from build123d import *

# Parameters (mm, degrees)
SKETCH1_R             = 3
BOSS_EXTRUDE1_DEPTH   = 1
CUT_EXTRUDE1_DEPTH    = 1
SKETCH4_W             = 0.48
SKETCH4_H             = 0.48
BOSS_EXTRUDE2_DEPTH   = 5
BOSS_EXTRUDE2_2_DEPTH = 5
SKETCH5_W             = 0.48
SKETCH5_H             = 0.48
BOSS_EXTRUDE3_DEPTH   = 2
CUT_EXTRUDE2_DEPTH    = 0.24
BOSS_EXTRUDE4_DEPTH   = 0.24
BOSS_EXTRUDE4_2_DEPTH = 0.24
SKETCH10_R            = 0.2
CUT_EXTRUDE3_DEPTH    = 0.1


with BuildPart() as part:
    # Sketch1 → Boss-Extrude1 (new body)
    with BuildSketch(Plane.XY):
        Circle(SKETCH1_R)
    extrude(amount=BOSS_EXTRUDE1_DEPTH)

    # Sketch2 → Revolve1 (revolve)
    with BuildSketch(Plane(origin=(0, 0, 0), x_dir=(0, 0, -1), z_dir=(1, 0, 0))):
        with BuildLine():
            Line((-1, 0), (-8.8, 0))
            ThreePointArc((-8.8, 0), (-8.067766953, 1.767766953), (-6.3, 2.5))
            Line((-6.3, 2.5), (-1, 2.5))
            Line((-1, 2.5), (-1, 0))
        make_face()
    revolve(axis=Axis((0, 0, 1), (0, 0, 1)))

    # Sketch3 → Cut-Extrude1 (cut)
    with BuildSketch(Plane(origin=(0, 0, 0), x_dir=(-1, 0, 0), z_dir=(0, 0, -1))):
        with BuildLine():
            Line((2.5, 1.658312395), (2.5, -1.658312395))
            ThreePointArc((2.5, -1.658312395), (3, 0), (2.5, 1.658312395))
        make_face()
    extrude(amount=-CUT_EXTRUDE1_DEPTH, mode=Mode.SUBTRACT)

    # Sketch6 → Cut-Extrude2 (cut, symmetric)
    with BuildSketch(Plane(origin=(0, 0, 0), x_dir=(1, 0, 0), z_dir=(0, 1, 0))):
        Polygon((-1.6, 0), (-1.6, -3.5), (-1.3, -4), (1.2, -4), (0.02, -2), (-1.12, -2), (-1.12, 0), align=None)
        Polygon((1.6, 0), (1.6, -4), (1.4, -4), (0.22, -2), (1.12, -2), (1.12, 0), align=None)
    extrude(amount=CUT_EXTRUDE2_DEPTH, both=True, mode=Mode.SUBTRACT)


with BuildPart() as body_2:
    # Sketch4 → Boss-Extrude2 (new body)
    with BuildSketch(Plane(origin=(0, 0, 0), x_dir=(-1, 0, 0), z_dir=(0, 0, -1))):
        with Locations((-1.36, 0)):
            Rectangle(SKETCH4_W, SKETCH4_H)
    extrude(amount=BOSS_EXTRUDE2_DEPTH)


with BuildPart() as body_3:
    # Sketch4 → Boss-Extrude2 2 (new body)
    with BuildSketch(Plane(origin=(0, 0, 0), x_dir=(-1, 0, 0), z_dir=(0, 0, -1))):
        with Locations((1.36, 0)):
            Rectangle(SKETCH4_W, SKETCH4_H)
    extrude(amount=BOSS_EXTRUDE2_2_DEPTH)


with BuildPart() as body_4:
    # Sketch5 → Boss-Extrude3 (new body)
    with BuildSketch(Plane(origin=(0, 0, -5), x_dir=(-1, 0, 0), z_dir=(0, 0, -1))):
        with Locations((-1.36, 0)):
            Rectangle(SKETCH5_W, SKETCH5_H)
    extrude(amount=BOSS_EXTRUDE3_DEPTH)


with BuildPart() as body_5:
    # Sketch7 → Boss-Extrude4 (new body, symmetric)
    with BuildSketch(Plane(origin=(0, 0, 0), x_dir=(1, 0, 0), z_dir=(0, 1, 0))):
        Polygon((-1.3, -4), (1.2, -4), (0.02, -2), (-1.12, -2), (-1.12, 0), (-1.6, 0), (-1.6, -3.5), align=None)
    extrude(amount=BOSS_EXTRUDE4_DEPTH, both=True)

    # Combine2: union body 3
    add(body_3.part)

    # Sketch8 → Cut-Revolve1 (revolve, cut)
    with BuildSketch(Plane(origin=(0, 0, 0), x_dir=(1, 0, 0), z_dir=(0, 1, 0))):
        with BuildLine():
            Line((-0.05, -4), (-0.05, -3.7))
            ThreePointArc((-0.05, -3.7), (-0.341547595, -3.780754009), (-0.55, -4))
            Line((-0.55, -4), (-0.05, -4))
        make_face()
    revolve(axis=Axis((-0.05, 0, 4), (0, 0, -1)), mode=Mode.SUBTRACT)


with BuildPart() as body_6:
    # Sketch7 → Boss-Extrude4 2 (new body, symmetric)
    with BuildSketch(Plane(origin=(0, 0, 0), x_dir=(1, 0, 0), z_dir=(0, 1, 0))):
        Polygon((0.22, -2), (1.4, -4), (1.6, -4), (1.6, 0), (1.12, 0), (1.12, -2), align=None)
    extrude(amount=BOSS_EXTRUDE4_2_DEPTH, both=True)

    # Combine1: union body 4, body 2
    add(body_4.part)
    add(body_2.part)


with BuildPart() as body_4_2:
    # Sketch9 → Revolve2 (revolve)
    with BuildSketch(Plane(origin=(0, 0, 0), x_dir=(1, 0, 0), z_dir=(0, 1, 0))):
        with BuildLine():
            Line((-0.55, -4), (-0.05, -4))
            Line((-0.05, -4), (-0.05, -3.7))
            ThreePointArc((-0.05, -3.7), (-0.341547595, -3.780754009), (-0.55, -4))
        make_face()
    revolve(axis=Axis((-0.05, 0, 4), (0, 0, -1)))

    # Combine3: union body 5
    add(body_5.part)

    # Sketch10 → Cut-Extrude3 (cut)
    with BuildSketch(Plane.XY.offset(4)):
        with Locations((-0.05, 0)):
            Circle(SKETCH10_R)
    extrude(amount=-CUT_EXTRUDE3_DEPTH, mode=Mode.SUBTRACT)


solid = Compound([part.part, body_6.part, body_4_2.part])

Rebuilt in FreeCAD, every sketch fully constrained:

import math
import FreeCAD as App
import Part
import Sketcher
Q = App.Units.Quantity

doc = App.newDocument("Part")
body = doc.addObject("PartDesign::Body", "Body")

sketch1 = body.newObject("Sketcher::SketchObject", "Sketch")
sketch1.AttachmentSupport = (doc.getObject("XY_Plane"), [""])
sketch1.MapMode = "FlatFace"
sketch1.addGeometry(Part.Circle(App.Vector(0, 0, 0), App.Vector(0, 0, 1), 3), False)
sketch1.addConstraint(Sketcher.Constraint("Coincident", 0, 3, -1, 1))
sketch1.addConstraint(Sketcher.Constraint("Diameter", 0, Q("6 mm")))
pad1 = body.newObject("PartDesign::Pad", "Pad")
pad1.Profile = sketch1
pad1.Length = 1

sketch2 = body.newObject("Sketcher::SketchObject", "Sketch001")
sketch2.AttachmentSupport = (doc.getObject("YZ_Plane"), [""])
sketch2.MapMode = "FlatFace"
sketch2.addGeometry(Part.LineSegment(App.Vector(0, 8.8, 0), App.Vector(0, 1, 0)), False)
sketch2.addGeometry(Part.LineSegment(App.Vector(0, 1, 0), App.Vector(2.5, 1, 0)), False)
sketch2.addGeometry(Part.LineSegment(App.Vector(2.5, 1, 0), App.Vector(2.5, 6.3, 0)), False)
sketch2.addGeometry(Part.ArcOfCircle(Part.Circle(App.Vector(0, 6.3, 0), App.Vector(0, 0, 1), 2.5), math.radians(0), math.radians(90)), False)
sketch2.addConstraint(Sketcher.Constraint("Coincident", 0, 2, 1, 1))
sketch2.addConstraint(Sketcher.Constraint("Coincident", 1, 2, 2, 1))
sketch2.addConstraint(Sketcher.Constraint("Tangent", 2, 2, 3, 1))
sketch2.addConstraint(Sketcher.Constraint("Coincident", 3, 2, 0, 1))
sketch2.addConstraint(Sketcher.Constraint("Vertical", 0))
sketch2.addConstraint(Sketcher.Constraint("Horizontal", 1))
sketch2.addConstraint(Sketcher.Constraint("Vertical", 2))
sketch2.addConstraint(Sketcher.Constraint("PointOnObject", 3, 3, -2))
sketch2.addConstraint(Sketcher.Constraint("PointOnObject", 0, 2, -2))
sketch2.addConstraint(Sketcher.Constraint("Radius", 3, Q("2.5 mm")))
sketch2.addConstraint(Sketcher.Constraint("DistanceY", 0, 2, 0, 1, Q("7.8 mm")))
sketch2.addConstraint(Sketcher.Constraint("DistanceY", -1, 1, 0, 2, Q("1 mm")))
revolution = body.newObject("PartDesign::Revolution", "Revolution")
revolution.Profile = sketch2
revolution.ReferenceAxis = (sketch2, ["V_Axis"])
revolution.Angle = 360

sketch3 = body.newObject("Sketcher::SketchObject", "Sketch002")
sketch3.AttachmentSupport = (doc.getObject("XY_Plane"), [""])
sketch3.MapMode = "FlatFace"
sketch3.addGeometry(Part.LineSegment(App.Vector(-2.5, 1.7, 0), App.Vector(-2.5, -1.7, 0)), False)
sketch3.addGeometry(Part.ArcOfCircle(Part.Circle(App.Vector(0, 0, 0), App.Vector(0, 0, 1), 3), math.radians(146), math.radians(214)), False)
sketch3.addConstraint(Sketcher.Constraint("Coincident", 0, 1, 1, 1))
sketch3.addConstraint(Sketcher.Constraint("Coincident", 1, 2, 0, 2))
sketch3.addConstraint(Sketcher.Constraint("Vertical", 0))
sketch3.addConstraint(Sketcher.Constraint("Coincident", 1, 3, -1, 1))
sketch3.addConstraint(Sketcher.Constraint("Radius", 1, Q("3 mm")))
sketch3.addConstraint(Sketcher.Constraint("DistanceX", 0, 1, -1, 1, Q("2.5 mm")))
pocket1 = body.newObject("PartDesign::Pocket", "Pocket")
pocket1.Profile = sketch3
pocket1.Length = 1
pocket1.Reversed = True

sketch4 = body.newObject("Sketcher::SketchObject", "Sketch003")
sketch4.AttachmentSupport = (doc.getObject("XZ_Plane"), [""])
sketch4.MapMode = "FlatFace"
sketch4.addGeometry(Part.LineSegment(App.Vector(-1.6, 0, 0), App.Vector(-1.6, 3.5, 0)), False)
sketch4.addGeometry(Part.LineSegment(App.Vector(-1.6, 3.5, 0), App.Vector(-1.3, 4, 0)), False)
sketch4.addGeometry(Part.LineSegment(App.Vector(-1.3, 4, 0), App.Vector(1.2, 4, 0)), False)
sketch4.addGeometry(Part.LineSegment(App.Vector(1.2, 4, 0), App.Vector(0.02, 2, 0)), False)
sketch4.addGeometry(Part.LineSegment(App.Vector(0.02, 2, 0), App.Vector(-1.12, 2, 0)), False)
sketch4.addGeometry(Part.LineSegment(App.Vector(-1.12, 2, 0), App.Vector(-1.12, 0, 0)), False)
sketch4.addGeometry(Part.LineSegment(App.Vector(-1.12, 0, 0), App.Vector(-1.6, 0, 0)), False)
sketch4.addGeometry(Part.LineSegment(App.Vector(1.6, 4, 0), App.Vector(1.6, 0, 0)), False)
sketch4.addGeometry(Part.LineSegment(App.Vector(1.6, 0, 0), App.Vector(1.12, 0, 0)), False)
sketch4.addGeometry(Part.LineSegment(App.Vector(1.12, 0, 0), App.Vector(1.12, 2, 0)), False)
sketch4.addGeometry(Part.LineSegment(App.Vector(1.12, 2, 0), App.Vector(0.22, 2, 0)), False)
sketch4.addGeometry(Part.LineSegment(App.Vector(0.22, 2, 0), App.Vector(1.4, 4, 0)), False)
sketch4.addGeometry(Part.LineSegment(App.Vector(1.4, 4, 0), App.Vector(1.6, 4, 0)), False)
sketch4.addConstraint(Sketcher.Constraint("Coincident", 0, 2, 1, 1))
sketch4.addConstraint(Sketcher.Constraint("Coincident", 1, 2, 2, 1))
sketch4.addConstraint(Sketcher.Constraint("Coincident", 2, 2, 3, 1))
sketch4.addConstraint(Sketcher.Constraint("Coincident", 3, 2, 4, 1))
sketch4.addConstraint(Sketcher.Constraint("Coincident", 4, 2, 5, 1))
sketch4.addConstraint(Sketcher.Constraint("Coincident", 5, 2, 6, 1))
sketch4.addConstraint(Sketcher.Constraint("Coincident", 6, 2, 0, 1))
sketch4.addConstraint(Sketcher.Constraint("Coincident", 7, 2, 8, 1))
sketch4.addConstraint(Sketcher.Constraint("Coincident", 8, 2, 9, 1))
sketch4.addConstraint(Sketcher.Constraint("Coincident", 9, 2, 10, 1))
sketch4.addConstraint(Sketcher.Constraint("Coincident", 10, 2, 11, 1))
sketch4.addConstraint(Sketcher.Constraint("Coincident", 11, 2, 12, 1))
sketch4.addConstraint(Sketcher.Constraint("Coincident", 12, 2, 7, 1))
sketch4.addConstraint(Sketcher.Constraint("Vertical", 0))
sketch4.addConstraint(Sketcher.Constraint("Horizontal", 2))
sketch4.addConstraint(Sketcher.Constraint("Horizontal", 4))
sketch4.addConstraint(Sketcher.Constraint("Vertical", 5))
sketch4.addConstraint(Sketcher.Constraint("Horizontal", 6))
sketch4.addConstraint(Sketcher.Constraint("Vertical", 7))
sketch4.addConstraint(Sketcher.Constraint("Horizontal", 8))
sketch4.addConstraint(Sketcher.Constraint("Vertical", 9))
sketch4.addConstraint(Sketcher.Constraint("Horizontal", 10))
sketch4.addConstraint(Sketcher.Constraint("Horizontal", 12))
sketch4.addConstraint(Sketcher.Constraint("Symmetric", 6, 2, 7, 2, -1, 1))
sketch4.addConstraint(Sketcher.Constraint("Symmetric", 5, 2, 8, 2, -2))
sketch4.addConstraint(Sketcher.Constraint("Parallel", 3, 11))
sketch4.addConstraint(Sketcher.Constraint("Horizontal", 4, 2, 9, 2))
sketch4.addConstraint(Sketcher.Constraint("Horizontal", 2, 2, 11, 2))
sketch4.addConstraint(Sketcher.Constraint("DistanceY", 5, 2, 5, 1, Q("2 mm")))
sketch4.addConstraint(Sketcher.Constraint("DistanceY", 7, 2, 7, 1, Q("4 mm")))
sketch4.addConstraint(Sketcher.Constraint("DistanceX", 2, 1, 2, 2, Q("2.5 mm")))
sketch4.addConstraint(Sketcher.Constraint("DistanceX", 10, 2, 10, 1, Q("0.9 mm")))
sketch4.addConstraint(Sketcher.Constraint("DistanceX", 12, 1, 12, 2, Q("0.2 mm")))
sketch4.addConstraint(Sketcher.Constraint("DistanceY", 0, 1, 0, 2, Q("3.5 mm")))
sketch4.addConstraint(Sketcher.Constraint("DistanceX", 4, 2, 4, 1, Q("1.14 mm")))
sketch4.addConstraint(Sketcher.Constraint("DistanceX", 6, 2, 6, 1, Q("0.48 mm")))
sketch4.addConstraint(Sketcher.Constraint("DistanceX", 0, 2, -1, 1, Q("1.6 mm")))
pocket2 = body.newObject("PartDesign::Pocket", "Pocket001")
pocket2.Profile = sketch4
pocket2.Length = 0.48
pocket2.Midplane = True
body2 = doc.addObject("PartDesign::Body", "Body001")

sketch5 = body2.newObject("Sketcher::SketchObject", "Sketch004")
sketch5.AttachmentSupport = (doc.getObject("XY_Plane001"), [""])
sketch5.MapMode = "FlatFace"
sketch5.addGeometry(Part.LineSegment(App.Vector(1.6, 0.24, 0), App.Vector(1.6, -0.24, 0)), False)
sketch5.addGeometry(Part.LineSegment(App.Vector(1.6, -0.24, 0), App.Vector(1.12, -0.24, 0)), False)
sketch5.addGeometry(Part.LineSegment(App.Vector(1.12, -0.24, 0), App.Vector(1.12, 0.24, 0)), False)
sketch5.addGeometry(Part.LineSegment(App.Vector(1.12, 0.24, 0), App.Vector(1.6, 0.24, 0)), False)
sketch5.addConstraint(Sketcher.Constraint("Coincident", 0, 2, 1, 1))
sketch5.addConstraint(Sketcher.Constraint("Coincident", 1, 2, 2, 1))
sketch5.addConstraint(Sketcher.Constraint("Coincident", 2, 2, 3, 1))
sketch5.addConstraint(Sketcher.Constraint("Coincident", 3, 2, 0, 1))
sketch5.addConstraint(Sketcher.Constraint("Vertical", 0))
sketch5.addConstraint(Sketcher.Constraint("Horizontal", 1))
sketch5.addConstraint(Sketcher.Constraint("Vertical", 2))
sketch5.addConstraint(Sketcher.Constraint("Horizontal", 3))
sketch5.addConstraint(Sketcher.Constraint("Equal", 3, 0))
sketch5.addConstraint(Sketcher.Constraint("DistanceX", 1, 2, 1, 1, Q("0.48 mm")))
sketch5.addConstraint(Sketcher.Constraint("DistanceX", -1, 1, 0, 2, Q("1.6 mm")))
sketch5.addConstraint(Sketcher.Constraint("DistanceY", 0, 2, -1, 1, Q("0.24 mm")))
pad2 = body2.newObject("PartDesign::Pad", "Pad001")
pad2.Profile = sketch5
pad2.Length = 5
pad2.Reversed = True
body3 = doc.addObject("PartDesign::Body", "Body002")

sketch6 = body3.newObject("Sketcher::SketchObject", "Sketch005")
sketch6.AttachmentSupport = (doc.getObject("XY_Plane002"), [""])
sketch6.MapMode = "FlatFace"
sketch6.addGeometry(Part.LineSegment(App.Vector(-1.12, 0.24, 0), App.Vector(-1.12, -0.24, 0)), False)
sketch6.addGeometry(Part.LineSegment(App.Vector(-1.12, -0.24, 0), App.Vector(-1.6, -0.24, 0)), False)
sketch6.addGeometry(Part.LineSegment(App.Vector(-1.6, -0.24, 0), App.Vector(-1.6, 0.24, 0)), False)
sketch6.addGeometry(Part.LineSegment(App.Vector(-1.6, 0.24, 0), App.Vector(-1.12, 0.24, 0)), False)
sketch6.addConstraint(Sketcher.Constraint("Coincident", 0, 2, 1, 1))
sketch6.addConstraint(Sketcher.Constraint("Coincident", 1, 2, 2, 1))
sketch6.addConstraint(Sketcher.Constraint("Coincident", 2, 2, 3, 1))
sketch6.addConstraint(Sketcher.Constraint("Coincident", 3, 2, 0, 1))
sketch6.addConstraint(Sketcher.Constraint("Vertical", 0))
sketch6.addConstraint(Sketcher.Constraint("Horizontal", 1))
sketch6.addConstraint(Sketcher.Constraint("Vertical", 2))
sketch6.addConstraint(Sketcher.Constraint("Horizontal", 3))
sketch6.addConstraint(Sketcher.Constraint("Equal", 3, 0))
sketch6.addConstraint(Sketcher.Constraint("DistanceX", 1, 2, 1, 1, Q("0.48 mm")))
sketch6.addConstraint(Sketcher.Constraint("DistanceX", 1, 2, -1, 1, Q("1.6 mm")))
sketch6.addConstraint(Sketcher.Constraint("DistanceY", 0, 2, -1, 1, Q("0.24 mm")))
pad3 = body3.newObject("PartDesign::Pad", "Pad002")
pad3.Profile = sketch6
pad3.Length = 5
pad3.Reversed = True
body4 = doc.addObject("PartDesign::Body", "Body003")

sketch7 = body4.newObject("Sketcher::SketchObject", "Sketch006")
sketch7.AttachmentSupport = (doc.getObject("XY_Plane003"), [""])
sketch7.MapMode = "FlatFace"
sketch7.AttachmentOffset = App.Placement(App.Vector(0, 0, -5), App.Rotation())
sketch7.addGeometry(Part.LineSegment(App.Vector(1.6, 0.24, 0), App.Vector(1.6, -0.24, 0)), False)
sketch7.addGeometry(Part.LineSegment(App.Vector(1.6, -0.24, 0), App.Vector(1.12, -0.24, 0)), False)
sketch7.addGeometry(Part.LineSegment(App.Vector(1.12, -0.24, 0), App.Vector(1.12, 0.24, 0)), False)
sketch7.addGeometry(Part.LineSegment(App.Vector(1.12, 0.24, 0), App.Vector(1.6, 0.24, 0)), False)
sketch7.addConstraint(Sketcher.Constraint("Coincident", 0, 2, 1, 1))
sketch7.addConstraint(Sketcher.Constraint("Coincident", 1, 2, 2, 1))
sketch7.addConstraint(Sketcher.Constraint("Coincident", 2, 2, 3, 1))
sketch7.addConstraint(Sketcher.Constraint("Coincident", 3, 2, 0, 1))
sketch7.addConstraint(Sketcher.Constraint("Vertical", 0))
sketch7.addConstraint(Sketcher.Constraint("Horizontal", 1))
sketch7.addConstraint(Sketcher.Constraint("Vertical", 2))
sketch7.addConstraint(Sketcher.Constraint("Horizontal", 3))
sketch7.addConstraint(Sketcher.Constraint("Equal", 3, 0))
sketch7.addConstraint(Sketcher.Constraint("DistanceX", 1, 2, 1, 1, Q("0.48 mm")))
sketch7.addConstraint(Sketcher.Constraint("DistanceX", -1, 1, 0, 2, Q("1.6 mm")))
sketch7.addConstraint(Sketcher.Constraint("DistanceY", 0, 2, -1, 1, Q("0.24 mm")))
pad4 = body4.newObject("PartDesign::Pad", "Pad003")
pad4.Profile = sketch7
pad4.Length = 2
pad4.Reversed = True
body5 = doc.addObject("PartDesign::Body", "Body004")

sketch8 = body5.newObject("Sketcher::SketchObject", "Sketch007")
sketch8.AttachmentSupport = (doc.getObject("XZ_Plane004"), [""])
sketch8.MapMode = "FlatFace"
sketch8.addGeometry(Part.LineSegment(App.Vector(-1.3, 4, 0), App.Vector(1.2, 4, 0)), False)
sketch8.addGeometry(Part.LineSegment(App.Vector(1.2, 4, 0), App.Vector(0.02, 2, 0)), False)
sketch8.addGeometry(Part.LineSegment(App.Vector(0.02, 2, 0), App.Vector(-1.12, 2, 0)), False)
sketch8.addGeometry(Part.LineSegment(App.Vector(-1.12, 2, 0), App.Vector(-1.12, 0, 0)), False)
sketch8.addGeometry(Part.LineSegment(App.Vector(-1.12, 0, 0), App.Vector(-1.6, 0, 0)), False)
sketch8.addGeometry(Part.LineSegment(App.Vector(-1.6, 0, 0), App.Vector(-1.6, 3.5, 0)), False)
sketch8.addGeometry(Part.LineSegment(App.Vector(-1.6, 3.5, 0), App.Vector(-1.3, 4, 0)), False)
sketch8.addConstraint(Sketcher.Constraint("Coincident", 0, 2, 1, 1))
sketch8.addConstraint(Sketcher.Constraint("Coincident", 1, 2, 2, 1))
sketch8.addConstraint(Sketcher.Constraint("Coincident", 2, 2, 3, 1))
sketch8.addConstraint(Sketcher.Constraint("Coincident", 3, 2, 4, 1))
sketch8.addConstraint(Sketcher.Constraint("Coincident", 4, 2, 5, 1))
sketch8.addConstraint(Sketcher.Constraint("Coincident", 5, 2, 6, 1))
sketch8.addConstraint(Sketcher.Constraint("Coincident", 6, 2, 0, 1))
sketch8.addConstraint(Sketcher.Constraint("Horizontal", 0))
sketch8.addConstraint(Sketcher.Constraint("Horizontal", 2))
sketch8.addConstraint(Sketcher.Constraint("Vertical", 3))
sketch8.addConstraint(Sketcher.Constraint("Horizontal", 4))
sketch8.addConstraint(Sketcher.Constraint("Vertical", 5))
sketch8.addConstraint(Sketcher.Constraint("PointOnObject", 3, 2, -1))
sketch8.addConstraint(Sketcher.Constraint("DistanceY", 3, 2, 3, 1, Q("2 mm")))
sketch8.addConstraint(Sketcher.Constraint("DistanceX", 0, 1, 0, 2, Q("2.5 mm")))
sketch8.addConstraint(Sketcher.Constraint("DistanceY", 5, 1, 5, 2, Q("3.5 mm")))
sketch8.addConstraint(Sketcher.Constraint("DistanceY", -1, 1, 0, 2, Q("4 mm")))
sketch8.addConstraint(Sketcher.Constraint("DistanceX", 2, 2, 2, 1, Q("1.14 mm")))
sketch8.addConstraint(Sketcher.Constraint("DistanceX", 4, 2, 4, 1, Q("0.48 mm")))
sketch8.addConstraint(Sketcher.Constraint("DistanceX", -1, 1, 0, 2, Q("1.2 mm")))
sketch8.addConstraint(Sketcher.Constraint("DistanceX", 4, 2, -1, 1, Q("1.6 mm")))
pad5 = body5.newObject("PartDesign::Pad", "Pad004")
pad5.Profile = sketch8
pad5.Length = 0.48
pad5.Midplane = True
doc.recompute()

boolean = body5.newObject("PartDesign::Boolean", "Boolean")
boolean.Type = "Fuse"
boolean.addObjects([body3])

sketch9 = body5.newObject("Sketcher::SketchObject", "Sketch008")
sketch9.AttachmentSupport = (doc.getObject("XZ_Plane004"), [""])
sketch9.MapMode = "FlatFace"
sketch9.addGeometry(Part.LineSegment(App.Vector(-0.05, 4, 0), App.Vector(-0.05, 3.7, 0)), False)
sketch9.addGeometry(Part.ArcOfCircle(Part.Circle(App.Vector(-0.05, 4.27, 0), App.Vector(0, 0, 1), 0.57), math.radians(-152), math.radians(-90)), False)
sketch9.addGeometry(Part.LineSegment(App.Vector(-0.55, 4, 0), App.Vector(-0.05, 4, 0)), False)
sketch9.addGeometry(Part.LineSegment(App.Vector(-0.05, 4.27, 0), App.Vector(-0.05, 3.7, 0)), True)
sketch9.addConstraint(Sketcher.Constraint("Coincident", 0, 2, 1, 2))
sketch9.addConstraint(Sketcher.Constraint("Coincident", 1, 1, 2, 1))
sketch9.addConstraint(Sketcher.Constraint("Coincident", 2, 2, 0, 1))
sketch9.addConstraint(Sketcher.Constraint("Vertical", 0))
sketch9.addConstraint(Sketcher.Constraint("Horizontal", 2))
sketch9.addConstraint(Sketcher.Constraint("Vertical", 3))
sketch9.addConstraint(Sketcher.Constraint("Coincident", 3, 1, 1, 3))
sketch9.addConstraint(Sketcher.Constraint("Coincident", 3, 2, 0, 2))
sketch9.addConstraint(Sketcher.Constraint("DistanceX", 2, 1, 2, 2, Q("0.5 mm")))
sketch9.addConstraint(Sketcher.Constraint("DistanceY", 0, 2, 0, 1, Q("0.3 mm")))
sketch9.addConstraint(Sketcher.Constraint("DistanceY", -1, 1, 1, 1, Q("4 mm")))
sketch9.addConstraint(Sketcher.Constraint("DistanceX", 1, 3, -1, 1, Q("0.05 mm")))
groove = body5.newObject("PartDesign::Groove", "Groove")
groove.Profile = sketch9
groove.ReferenceAxis = (sketch9, ["Axis0"])
groove.Angle = 360
body6 = doc.addObject("PartDesign::Body", "Body005")
body6.AllowCompound = True

sketch10 = body6.newObject("Sketcher::SketchObject", "Sketch009")
sketch10.AttachmentSupport = (doc.getObject("XZ_Plane005"), [""])
sketch10.MapMode = "FlatFace"
sketch10.addGeometry(Part.LineSegment(App.Vector(0.22, 2, 0), App.Vector(1.4, 4, 0)), False)
sketch10.addGeometry(Part.LineSegment(App.Vector(1.4, 4, 0), App.Vector(1.6, 4, 0)), False)
sketch10.addGeometry(Part.LineSegment(App.Vector(1.6, 4, 0), App.Vector(1.6, 0, 0)), False)
sketch10.addGeometry(Part.LineSegment(App.Vector(1.6, 0, 0), App.Vector(1.12, 0, 0)), False)
sketch10.addGeometry(Part.LineSegment(App.Vector(1.12, 0, 0), App.Vector(1.12, 2, 0)), False)
sketch10.addGeometry(Part.LineSegment(App.Vector(1.12, 2, 0), App.Vector(0.22, 2, 0)), False)
sketch10.addConstraint(Sketcher.Constraint("Coincident", 0, 2, 1, 1))
sketch10.addConstraint(Sketcher.Constraint("Coincident", 1, 2, 2, 1))
sketch10.addConstraint(Sketcher.Constraint("Coincident", 2, 2, 3, 1))
sketch10.addConstraint(Sketcher.Constraint("Coincident", 3, 2, 4, 1))
sketch10.addConstraint(Sketcher.Constraint("Coincident", 4, 2, 5, 1))
sketch10.addConstraint(Sketcher.Constraint("Coincident", 5, 2, 0, 1))
sketch10.addConstraint(Sketcher.Constraint("Horizontal", 1))
sketch10.addConstraint(Sketcher.Constraint("Vertical", 2))
sketch10.addConstraint(Sketcher.Constraint("Horizontal", 3))
sketch10.addConstraint(Sketcher.Constraint("Vertical", 4))
sketch10.addConstraint(Sketcher.Constraint("Horizontal", 5))
sketch10.addConstraint(Sketcher.Constraint("PointOnObject", 2, 2, -1))
sketch10.addConstraint(Sketcher.Constraint("DistanceY", 2, 2, 2, 1, Q("4 mm")))
sketch10.addConstraint(Sketcher.Constraint("DistanceY", 4, 1, 4, 2, Q("2 mm")))
sketch10.addConstraint(Sketcher.Constraint("DistanceX", 1, 1, 1, 2, Q("0.2 mm")))
sketch10.addConstraint(Sketcher.Constraint("DistanceX", 5, 2, 5, 1, Q("0.9 mm")))
sketch10.addConstraint(Sketcher.Constraint("DistanceX", 3, 2, 3, 1, Q("0.48 mm")))
sketch10.addConstraint(Sketcher.Constraint("DistanceX", -1, 1, 0, 2, Q("1.4 mm")))
pad6 = body6.newObject("PartDesign::Pad", "Pad005")
pad6.Profile = sketch10
pad6.Length = 0.48
pad6.Midplane = True
doc.recompute()

boolean2 = body6.newObject("PartDesign::Boolean", "Boolean001")
boolean2.Type = "Fuse"
boolean2.addObjects([body4])
doc.recompute()

boolean3 = body6.newObject("PartDesign::Boolean", "Boolean002")
boolean3.Type = "Fuse"
boolean3.addObjects([body2])
body7 = doc.addObject("PartDesign::Body", "Body006")

sketch11 = body7.newObject("Sketcher::SketchObject", "Sketch010")
sketch11.AttachmentSupport = (doc.getObject("XZ_Plane006"), [""])
sketch11.MapMode = "FlatFace"
sketch11.addGeometry(Part.LineSegment(App.Vector(-0.55, 4, 0), App.Vector(-0.05, 4, 0)), False)
sketch11.addGeometry(Part.LineSegment(App.Vector(-0.05, 4, 0), App.Vector(-0.05, 3.7, 0)), False)
sketch11.addGeometry(Part.ArcOfCircle(Part.Circle(App.Vector(-0.05, 4.27, 0), App.Vector(0, 0, 1), 0.57), math.radians(-152), math.radians(-90)), False)
sketch11.addGeometry(Part.LineSegment(App.Vector(-0.05, 4.27, 0), App.Vector(-0.05, 3.7, 0)), True)
sketch11.addConstraint(Sketcher.Constraint("Coincident", 0, 2, 1, 1))
sketch11.addConstraint(Sketcher.Constraint("Coincident", 1, 2, 2, 2))
sketch11.addConstraint(Sketcher.Constraint("Coincident", 2, 1, 0, 1))
sketch11.addConstraint(Sketcher.Constraint("Horizontal", 0))
sketch11.addConstraint(Sketcher.Constraint("Vertical", 1))
sketch11.addConstraint(Sketcher.Constraint("Vertical", 3))
sketch11.addConstraint(Sketcher.Constraint("Coincident", 3, 1, 2, 3))
sketch11.addConstraint(Sketcher.Constraint("Coincident", 3, 2, 1, 2))
sketch11.addConstraint(Sketcher.Constraint("DistanceX", 0, 1, 0, 2, Q("0.5 mm")))
sketch11.addConstraint(Sketcher.Constraint("DistanceY", 1, 2, 1, 1, Q("0.3 mm")))
sketch11.addConstraint(Sketcher.Constraint("DistanceY", -1, 1, 0, 2, Q("4 mm")))
sketch11.addConstraint(Sketcher.Constraint("DistanceX", 2, 3, -1, 1, Q("0.05 mm")))
revolution2 = body7.newObject("PartDesign::Revolution", "Revolution001")
revolution2.Profile = sketch11
revolution2.ReferenceAxis = (sketch11, ["Axis0"])
revolution2.Angle = 360
doc.recompute()

boolean4 = body7.newObject("PartDesign::Boolean", "Boolean003")
boolean4.Type = "Fuse"
boolean4.addObjects([body5])

sketch12 = body7.newObject("Sketcher::SketchObject", "Sketch011")
sketch12.AttachmentSupport = (doc.getObject("XY_Plane006"), [""])
sketch12.MapMode = "FlatFace"
sketch12.AttachmentOffset = App.Placement(App.Vector(0, 0, 4), App.Rotation())
sketch12.addGeometry(Part.Circle(App.Vector(-0.05, 0, 0), App.Vector(0, 0, 1), 0.2), False)
sketch12.addConstraint(Sketcher.Constraint("PointOnObject", 0, 3, -1))
sketch12.addConstraint(Sketcher.Constraint("Diameter", 0, Q("0.4 mm")))
sketch12.addConstraint(Sketcher.Constraint("DistanceX", 0, 3, -1, 1, Q("0.05 mm")))
pocket3 = body7.newObject("PartDesign::Pocket", "Pocket002")
pocket3.Profile = sketch12
pocket3.Length = 0.1

doc.recompute()
